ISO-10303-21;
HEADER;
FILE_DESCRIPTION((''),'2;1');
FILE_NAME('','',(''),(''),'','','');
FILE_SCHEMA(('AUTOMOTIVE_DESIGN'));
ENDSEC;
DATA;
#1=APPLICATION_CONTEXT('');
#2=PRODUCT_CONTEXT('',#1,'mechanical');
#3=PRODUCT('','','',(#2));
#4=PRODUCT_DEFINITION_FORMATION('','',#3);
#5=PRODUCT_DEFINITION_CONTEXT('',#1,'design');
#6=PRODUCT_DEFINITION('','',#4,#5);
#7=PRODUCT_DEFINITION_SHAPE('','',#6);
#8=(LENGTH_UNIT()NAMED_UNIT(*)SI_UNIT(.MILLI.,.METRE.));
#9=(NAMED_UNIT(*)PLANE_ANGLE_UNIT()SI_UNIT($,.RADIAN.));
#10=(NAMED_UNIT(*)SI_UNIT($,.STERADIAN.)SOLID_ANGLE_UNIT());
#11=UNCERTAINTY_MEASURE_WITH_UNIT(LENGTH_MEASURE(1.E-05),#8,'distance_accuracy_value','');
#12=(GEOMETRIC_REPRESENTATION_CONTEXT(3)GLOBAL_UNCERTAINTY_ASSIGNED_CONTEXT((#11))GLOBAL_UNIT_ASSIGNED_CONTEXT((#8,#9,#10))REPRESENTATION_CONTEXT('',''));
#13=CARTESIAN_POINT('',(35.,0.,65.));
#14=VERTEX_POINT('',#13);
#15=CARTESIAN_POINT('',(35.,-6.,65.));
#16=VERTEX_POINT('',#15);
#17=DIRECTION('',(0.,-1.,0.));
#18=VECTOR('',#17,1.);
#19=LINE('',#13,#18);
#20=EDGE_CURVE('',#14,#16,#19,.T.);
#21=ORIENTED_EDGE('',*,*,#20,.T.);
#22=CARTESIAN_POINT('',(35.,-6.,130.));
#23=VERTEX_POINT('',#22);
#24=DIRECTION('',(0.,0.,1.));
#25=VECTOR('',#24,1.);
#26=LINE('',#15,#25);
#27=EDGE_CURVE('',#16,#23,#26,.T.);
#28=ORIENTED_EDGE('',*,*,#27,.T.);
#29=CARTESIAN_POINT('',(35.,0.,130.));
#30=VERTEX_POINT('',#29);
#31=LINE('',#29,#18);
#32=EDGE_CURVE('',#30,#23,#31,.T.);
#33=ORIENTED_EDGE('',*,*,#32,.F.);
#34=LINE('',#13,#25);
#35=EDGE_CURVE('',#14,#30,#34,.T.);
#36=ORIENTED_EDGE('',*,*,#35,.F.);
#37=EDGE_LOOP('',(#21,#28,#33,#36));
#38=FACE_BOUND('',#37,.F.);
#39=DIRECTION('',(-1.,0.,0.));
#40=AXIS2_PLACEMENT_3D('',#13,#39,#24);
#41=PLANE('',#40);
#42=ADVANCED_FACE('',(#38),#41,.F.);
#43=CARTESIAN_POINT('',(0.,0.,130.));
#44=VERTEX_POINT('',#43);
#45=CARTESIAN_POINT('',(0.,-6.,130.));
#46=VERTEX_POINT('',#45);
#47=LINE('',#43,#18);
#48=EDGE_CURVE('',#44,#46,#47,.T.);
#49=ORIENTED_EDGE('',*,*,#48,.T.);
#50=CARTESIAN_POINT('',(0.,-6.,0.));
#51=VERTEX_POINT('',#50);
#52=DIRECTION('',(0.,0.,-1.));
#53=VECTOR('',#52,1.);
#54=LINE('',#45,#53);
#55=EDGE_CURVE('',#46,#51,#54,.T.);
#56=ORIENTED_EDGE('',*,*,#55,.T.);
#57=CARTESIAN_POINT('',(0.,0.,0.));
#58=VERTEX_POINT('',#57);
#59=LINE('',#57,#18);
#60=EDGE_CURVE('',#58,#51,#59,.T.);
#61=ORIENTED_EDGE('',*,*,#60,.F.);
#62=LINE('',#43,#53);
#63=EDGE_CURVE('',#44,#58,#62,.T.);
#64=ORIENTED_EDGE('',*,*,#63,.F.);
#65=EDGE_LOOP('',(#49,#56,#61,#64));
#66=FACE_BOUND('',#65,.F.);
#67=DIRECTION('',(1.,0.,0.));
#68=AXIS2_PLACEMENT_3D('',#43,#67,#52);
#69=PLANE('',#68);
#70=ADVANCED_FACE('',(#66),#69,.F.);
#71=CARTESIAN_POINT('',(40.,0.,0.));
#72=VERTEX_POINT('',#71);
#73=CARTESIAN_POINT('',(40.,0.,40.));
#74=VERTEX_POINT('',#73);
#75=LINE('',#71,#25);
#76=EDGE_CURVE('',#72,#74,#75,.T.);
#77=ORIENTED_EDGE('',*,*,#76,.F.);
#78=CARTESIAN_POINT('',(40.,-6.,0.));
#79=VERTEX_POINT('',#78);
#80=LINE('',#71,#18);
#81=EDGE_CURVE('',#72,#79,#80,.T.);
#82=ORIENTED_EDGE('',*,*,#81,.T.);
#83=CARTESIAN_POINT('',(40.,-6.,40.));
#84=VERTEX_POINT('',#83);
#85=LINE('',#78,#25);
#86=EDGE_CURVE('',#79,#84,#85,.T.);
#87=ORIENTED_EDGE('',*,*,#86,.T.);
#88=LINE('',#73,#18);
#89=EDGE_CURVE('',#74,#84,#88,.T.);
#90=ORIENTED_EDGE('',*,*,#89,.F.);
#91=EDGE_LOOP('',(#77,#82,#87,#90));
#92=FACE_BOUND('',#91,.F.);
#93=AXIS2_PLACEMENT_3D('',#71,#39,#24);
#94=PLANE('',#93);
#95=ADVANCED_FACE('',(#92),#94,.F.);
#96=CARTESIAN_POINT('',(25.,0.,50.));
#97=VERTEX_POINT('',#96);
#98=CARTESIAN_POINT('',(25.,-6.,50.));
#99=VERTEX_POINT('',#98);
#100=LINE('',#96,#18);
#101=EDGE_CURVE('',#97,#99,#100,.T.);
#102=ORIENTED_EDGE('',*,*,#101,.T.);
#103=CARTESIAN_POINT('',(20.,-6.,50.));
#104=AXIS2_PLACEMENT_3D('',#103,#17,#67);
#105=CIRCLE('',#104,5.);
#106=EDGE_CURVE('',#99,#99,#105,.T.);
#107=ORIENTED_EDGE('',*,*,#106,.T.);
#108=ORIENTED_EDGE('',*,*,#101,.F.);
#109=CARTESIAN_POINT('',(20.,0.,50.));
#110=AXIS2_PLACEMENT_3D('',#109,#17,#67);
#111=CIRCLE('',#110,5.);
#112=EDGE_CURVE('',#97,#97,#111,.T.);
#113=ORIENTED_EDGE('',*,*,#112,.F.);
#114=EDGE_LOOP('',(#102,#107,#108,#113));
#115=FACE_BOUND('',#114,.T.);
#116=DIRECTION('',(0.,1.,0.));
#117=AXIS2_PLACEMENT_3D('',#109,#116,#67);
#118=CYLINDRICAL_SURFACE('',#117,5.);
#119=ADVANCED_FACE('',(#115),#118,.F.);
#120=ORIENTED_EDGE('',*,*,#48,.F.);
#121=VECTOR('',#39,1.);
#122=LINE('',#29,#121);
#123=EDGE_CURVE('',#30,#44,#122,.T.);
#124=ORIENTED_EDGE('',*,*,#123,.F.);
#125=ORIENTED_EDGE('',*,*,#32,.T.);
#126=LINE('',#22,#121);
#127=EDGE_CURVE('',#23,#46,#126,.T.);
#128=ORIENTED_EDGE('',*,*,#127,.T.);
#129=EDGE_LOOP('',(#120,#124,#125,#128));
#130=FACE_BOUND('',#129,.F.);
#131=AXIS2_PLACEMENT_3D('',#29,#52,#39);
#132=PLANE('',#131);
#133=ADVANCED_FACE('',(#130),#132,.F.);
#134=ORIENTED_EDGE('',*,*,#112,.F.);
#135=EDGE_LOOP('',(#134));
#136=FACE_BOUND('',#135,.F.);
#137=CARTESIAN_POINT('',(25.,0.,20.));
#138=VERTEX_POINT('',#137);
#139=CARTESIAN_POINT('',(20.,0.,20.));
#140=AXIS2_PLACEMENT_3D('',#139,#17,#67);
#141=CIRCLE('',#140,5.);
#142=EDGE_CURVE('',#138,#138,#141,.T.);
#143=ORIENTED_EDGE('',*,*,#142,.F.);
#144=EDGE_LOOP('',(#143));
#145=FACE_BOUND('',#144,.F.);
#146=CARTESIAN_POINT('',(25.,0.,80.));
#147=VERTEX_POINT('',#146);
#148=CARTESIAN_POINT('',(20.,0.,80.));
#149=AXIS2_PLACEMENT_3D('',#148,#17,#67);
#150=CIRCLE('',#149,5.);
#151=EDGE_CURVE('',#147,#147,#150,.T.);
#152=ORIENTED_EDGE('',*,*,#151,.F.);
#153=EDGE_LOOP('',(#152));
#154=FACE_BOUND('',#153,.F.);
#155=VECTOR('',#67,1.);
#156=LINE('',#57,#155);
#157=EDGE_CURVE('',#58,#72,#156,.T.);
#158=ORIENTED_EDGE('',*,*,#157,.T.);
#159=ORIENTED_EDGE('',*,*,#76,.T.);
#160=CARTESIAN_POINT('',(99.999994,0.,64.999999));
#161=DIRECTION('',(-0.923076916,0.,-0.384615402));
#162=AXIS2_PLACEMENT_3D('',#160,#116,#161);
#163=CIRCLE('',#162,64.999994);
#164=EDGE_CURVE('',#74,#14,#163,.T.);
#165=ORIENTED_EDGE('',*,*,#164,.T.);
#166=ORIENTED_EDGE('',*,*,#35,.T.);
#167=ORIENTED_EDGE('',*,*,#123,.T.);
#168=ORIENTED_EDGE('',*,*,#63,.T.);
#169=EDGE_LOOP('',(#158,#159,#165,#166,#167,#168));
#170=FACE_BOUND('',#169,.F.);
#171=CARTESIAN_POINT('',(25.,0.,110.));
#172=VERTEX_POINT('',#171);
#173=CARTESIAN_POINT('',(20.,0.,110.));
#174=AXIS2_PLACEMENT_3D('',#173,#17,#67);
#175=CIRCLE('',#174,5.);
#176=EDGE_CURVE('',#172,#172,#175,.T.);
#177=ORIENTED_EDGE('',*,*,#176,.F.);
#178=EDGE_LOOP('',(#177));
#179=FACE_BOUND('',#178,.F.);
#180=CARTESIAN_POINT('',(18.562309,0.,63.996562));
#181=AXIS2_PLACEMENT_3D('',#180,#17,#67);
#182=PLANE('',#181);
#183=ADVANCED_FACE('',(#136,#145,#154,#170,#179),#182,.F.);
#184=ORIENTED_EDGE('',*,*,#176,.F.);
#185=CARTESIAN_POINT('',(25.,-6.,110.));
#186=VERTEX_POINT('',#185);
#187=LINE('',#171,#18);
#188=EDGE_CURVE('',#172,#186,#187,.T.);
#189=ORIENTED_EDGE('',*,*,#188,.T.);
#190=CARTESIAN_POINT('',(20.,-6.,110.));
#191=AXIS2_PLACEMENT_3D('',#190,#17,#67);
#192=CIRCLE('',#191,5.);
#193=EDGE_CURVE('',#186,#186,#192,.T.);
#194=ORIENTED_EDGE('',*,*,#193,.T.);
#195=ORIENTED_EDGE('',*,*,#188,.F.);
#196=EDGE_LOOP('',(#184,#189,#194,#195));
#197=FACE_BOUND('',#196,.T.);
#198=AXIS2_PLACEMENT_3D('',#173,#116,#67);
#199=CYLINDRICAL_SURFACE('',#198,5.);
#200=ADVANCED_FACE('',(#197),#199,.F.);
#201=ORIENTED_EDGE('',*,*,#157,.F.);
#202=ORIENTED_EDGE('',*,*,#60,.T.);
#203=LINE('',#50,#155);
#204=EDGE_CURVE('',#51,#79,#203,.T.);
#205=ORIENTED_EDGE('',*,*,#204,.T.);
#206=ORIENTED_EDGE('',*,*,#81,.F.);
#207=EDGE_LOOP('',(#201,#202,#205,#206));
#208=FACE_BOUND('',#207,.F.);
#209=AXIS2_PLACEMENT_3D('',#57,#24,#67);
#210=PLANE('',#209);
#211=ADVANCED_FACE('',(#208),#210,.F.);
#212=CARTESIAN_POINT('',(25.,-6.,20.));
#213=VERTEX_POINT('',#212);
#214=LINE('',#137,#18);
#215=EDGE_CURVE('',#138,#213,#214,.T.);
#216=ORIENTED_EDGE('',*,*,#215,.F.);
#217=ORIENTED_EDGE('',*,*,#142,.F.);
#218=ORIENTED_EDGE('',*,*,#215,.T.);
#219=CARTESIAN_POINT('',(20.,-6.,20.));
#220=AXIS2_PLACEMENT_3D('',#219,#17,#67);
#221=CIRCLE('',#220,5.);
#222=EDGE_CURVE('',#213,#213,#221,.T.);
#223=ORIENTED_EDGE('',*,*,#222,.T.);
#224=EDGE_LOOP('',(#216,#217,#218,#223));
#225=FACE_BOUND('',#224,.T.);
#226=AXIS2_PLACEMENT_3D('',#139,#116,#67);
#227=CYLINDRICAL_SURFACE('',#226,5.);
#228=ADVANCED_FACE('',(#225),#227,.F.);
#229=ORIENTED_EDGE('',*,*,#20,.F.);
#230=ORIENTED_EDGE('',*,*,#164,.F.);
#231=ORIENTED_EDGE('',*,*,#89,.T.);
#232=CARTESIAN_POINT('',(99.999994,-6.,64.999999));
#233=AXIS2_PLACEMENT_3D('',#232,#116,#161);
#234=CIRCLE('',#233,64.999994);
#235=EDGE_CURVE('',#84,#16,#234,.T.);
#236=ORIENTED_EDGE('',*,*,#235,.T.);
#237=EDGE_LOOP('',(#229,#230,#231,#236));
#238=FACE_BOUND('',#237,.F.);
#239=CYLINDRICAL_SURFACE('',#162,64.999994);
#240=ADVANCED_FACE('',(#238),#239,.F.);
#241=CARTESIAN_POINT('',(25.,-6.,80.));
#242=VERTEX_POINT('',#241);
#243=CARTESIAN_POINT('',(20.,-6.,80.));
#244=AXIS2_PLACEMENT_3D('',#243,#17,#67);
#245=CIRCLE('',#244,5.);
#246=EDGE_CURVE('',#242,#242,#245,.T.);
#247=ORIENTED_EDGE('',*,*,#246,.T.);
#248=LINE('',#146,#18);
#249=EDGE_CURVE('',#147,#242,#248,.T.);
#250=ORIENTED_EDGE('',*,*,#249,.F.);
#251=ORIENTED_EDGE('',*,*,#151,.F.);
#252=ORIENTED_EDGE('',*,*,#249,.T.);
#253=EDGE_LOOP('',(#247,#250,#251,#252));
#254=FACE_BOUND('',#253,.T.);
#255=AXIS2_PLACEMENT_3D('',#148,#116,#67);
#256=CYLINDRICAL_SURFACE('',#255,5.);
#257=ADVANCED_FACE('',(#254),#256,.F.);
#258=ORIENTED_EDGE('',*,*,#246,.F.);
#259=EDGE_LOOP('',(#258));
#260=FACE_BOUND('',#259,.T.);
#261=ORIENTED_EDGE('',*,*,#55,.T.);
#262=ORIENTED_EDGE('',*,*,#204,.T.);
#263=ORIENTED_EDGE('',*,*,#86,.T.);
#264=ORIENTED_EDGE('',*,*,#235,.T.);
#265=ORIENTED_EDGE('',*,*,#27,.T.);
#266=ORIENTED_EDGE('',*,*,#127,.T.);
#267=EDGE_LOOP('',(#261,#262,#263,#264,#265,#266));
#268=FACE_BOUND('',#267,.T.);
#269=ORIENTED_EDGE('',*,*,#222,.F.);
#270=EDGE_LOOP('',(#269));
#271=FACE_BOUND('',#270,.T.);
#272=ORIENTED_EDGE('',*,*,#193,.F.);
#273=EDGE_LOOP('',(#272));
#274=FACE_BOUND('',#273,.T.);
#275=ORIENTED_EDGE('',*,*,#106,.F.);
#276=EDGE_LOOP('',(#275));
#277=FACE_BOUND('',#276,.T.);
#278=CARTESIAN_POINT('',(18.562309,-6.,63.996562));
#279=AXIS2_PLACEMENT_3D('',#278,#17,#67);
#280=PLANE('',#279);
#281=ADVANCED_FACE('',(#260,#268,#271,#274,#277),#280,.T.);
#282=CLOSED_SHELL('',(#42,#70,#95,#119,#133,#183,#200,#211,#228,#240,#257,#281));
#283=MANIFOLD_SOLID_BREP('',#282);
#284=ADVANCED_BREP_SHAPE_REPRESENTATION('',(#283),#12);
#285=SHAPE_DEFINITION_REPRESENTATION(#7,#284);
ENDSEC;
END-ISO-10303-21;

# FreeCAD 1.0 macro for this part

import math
import FreeCAD as App
import Part
import Sketcher

doc = App.newDocument("Part")
body = doc.addObject("PartDesign::Body", "Body")

sketch1 = body.newObject("Sketcher::SketchObject", "Sketch")
sketch1.AttachmentSupport = (doc.getObject("XZ_Plane"), [""])
sketch1.MapMode = "FlatFace"
sketch1.addGeometry([
    Part.LineSegment(App.Vector(0, 130, 0), App.Vector(0, 0, 0)),
    Part.LineSegment(App.Vector(0, 0, 0), App.Vector(40, 0, 0)),
    Part.LineSegment(App.Vector(40, 0, 0), App.Vector(40, 40, 0)),
    Part.ArcOfCircle(Part.Circle(App.Vector(99.999994, 64.999999, 0), App.Vector(0, 0, 1), 64.999994), math.radians(179.999999), math.radians(202.619866)),
    Part.LineSegment(App.Vector(35, 65, 0), App.Vector(35, 130, 0)),
    Part.LineSegment(App.Vector(35, 130, 0), App.Vector(0, 130, 0)),
    Part.Circle(App.Vector(20, 20, 0), App.Vector(0, 0, 1), 5),
    Part.Circle(App.Vector(20, 50, 0), App.Vector(0, 0, 1), 5),
    Part.Circle(App.Vector(20, 80, 0), App.Vector(0, 0, 1), 5),
    Part.Circle(App.Vector(20, 110, 0), App.Vector(0, 0, 1), 5),
], False)
sketch1.addConstraint([
    Sketcher.Constraint("Coincident", 0, 2, 1, 1),
    Sketcher.Constraint("Coincident", 1, 2, 2, 1),
    Sketcher.Constraint("Coincident", 2, 2, 3, 2),
    Sketcher.Constraint("Tangent", 3, 1, 4, 1),
    Sketcher.Constraint("Coincident", 4, 2, 5, 1),
    Sketcher.Constraint("Coincident", 5, 2, 0, 1),
    Sketcher.Constraint("Vertical", 0),
    Sketcher.Constraint("Horizontal", 1),
    Sketcher.Constraint("Vertical", 2),
    Sketcher.Constraint("Vertical", 4),
    Sketcher.Constraint("Horizontal", 5),
    Sketcher.Constraint("Coincident", 0, 2, -1, 1),
    Sketcher.Constraint("Equal", 6, 7),
    Sketcher.Constraint("Equal", 7, 8),
    Sketcher.Constraint("Equal", 8, 9),
    Sketcher.Constraint("Vertical", 6, 3, 7, 3),
    Sketcher.Constraint("Vertical", 7, 3, 8, 3),
    Sketcher.Constraint("Vertical", 8, 3, 9, 3),
    Sketcher.Constraint("Equal", 1, 2),
    Sketcher.Constraint("Diameter", 6, 10.0),
    Sketcher.Constraint("DistanceX", 1, 1, 1, 2, 40.0),
    Sketcher.Constraint("DistanceX", 5, 2, 5, 1, 35.0),
    Sketcher.Constraint("DistanceY", 0, 2, 0, 1, 130.0),
    Sketcher.Constraint("DistanceY", 4, 1, 4, 2, 65.0),
    Sketcher.Constraint("DistanceX", -1, 1, 6, 3, 20.0),
    Sketcher.Constraint("DistanceY", -1, 1, 6, 3, 20.0),
    Sketcher.Constraint("DistanceY", -1, 1, 7, 3, 50.0),
    Sketcher.Constraint("DistanceY", -1, 1, 8, 3, 80.0),
    Sketcher.Constraint("DistanceY", -1, 1, 9, 3, 110.0),
])
pad1 = body.newObject("PartDesign::Pad", "Pad")
pad1.Profile = sketch1
pad1.Length = 6

doc.recompute()
